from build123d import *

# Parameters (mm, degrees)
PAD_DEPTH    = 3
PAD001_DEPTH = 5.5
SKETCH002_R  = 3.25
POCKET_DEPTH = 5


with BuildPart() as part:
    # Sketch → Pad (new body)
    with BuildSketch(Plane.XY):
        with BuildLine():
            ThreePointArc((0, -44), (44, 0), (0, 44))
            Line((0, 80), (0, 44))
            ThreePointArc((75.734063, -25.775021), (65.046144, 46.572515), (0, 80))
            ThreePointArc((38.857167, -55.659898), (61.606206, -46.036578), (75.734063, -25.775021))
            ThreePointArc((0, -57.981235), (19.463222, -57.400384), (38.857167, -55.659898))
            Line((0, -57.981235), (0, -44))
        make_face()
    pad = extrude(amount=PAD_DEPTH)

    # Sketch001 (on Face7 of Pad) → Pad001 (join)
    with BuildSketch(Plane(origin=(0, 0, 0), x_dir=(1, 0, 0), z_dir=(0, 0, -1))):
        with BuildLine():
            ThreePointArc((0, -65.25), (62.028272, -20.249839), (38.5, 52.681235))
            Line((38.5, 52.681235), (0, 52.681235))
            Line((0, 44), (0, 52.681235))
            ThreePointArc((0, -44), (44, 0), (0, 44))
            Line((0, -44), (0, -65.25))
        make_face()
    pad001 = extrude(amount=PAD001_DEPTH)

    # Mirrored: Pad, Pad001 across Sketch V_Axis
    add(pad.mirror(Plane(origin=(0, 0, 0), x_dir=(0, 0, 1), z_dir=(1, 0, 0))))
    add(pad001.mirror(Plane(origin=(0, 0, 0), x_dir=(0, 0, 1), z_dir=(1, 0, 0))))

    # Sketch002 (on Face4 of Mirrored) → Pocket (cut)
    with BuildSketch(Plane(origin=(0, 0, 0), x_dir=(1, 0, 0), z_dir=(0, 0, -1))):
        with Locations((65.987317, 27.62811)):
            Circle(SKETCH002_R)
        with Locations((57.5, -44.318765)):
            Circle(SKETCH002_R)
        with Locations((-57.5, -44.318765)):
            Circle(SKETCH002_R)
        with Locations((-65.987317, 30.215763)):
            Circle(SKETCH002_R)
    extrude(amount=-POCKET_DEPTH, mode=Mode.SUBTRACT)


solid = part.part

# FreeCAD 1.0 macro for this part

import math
import FreeCAD as App
import Part
import Sketcher

doc = App.newDocument("Part")
params = doc.addObject("Spreadsheet::Sheet", "Params")
for row, (alias, value) in enumerate([
    ("sketch1_radius", "44 mm"),
    ("sketch1_radius2", "80 mm"),
    ("pad1_length", "3 mm"),
    ("sketch2_radius", "44 mm"),
    ("sketch2_radius2", "65.25 mm"),
    ("sketch2_width", "38.5 mm"),
    ("pad2_length", "5.5 mm"),
    ("sketch3_diameter", "6.5 mm"),
    ("pocket1_length", "5 mm"),
], start=1):
    params.set(f"A{row}", alias)
    params.set(f"B{row}", "=" + value)
    params.setAlias(f"B{row}", alias)

body = doc.addObject("PartDesign::Body", "Body")

sketch1 = body.newObject("Sketcher::SketchObject", "Sketch")
sketch1.AttachmentSupport = (doc.getObject("XY_Plane"), [""])
sketch1.MapMode = "FlatFace"
sketch1.addGeometry([
    Part.ArcOfCircle(Part.Circle(App.Vector(0, 0, 0), App.Vector(0, 0, 1), 44), math.radians(-90), math.radians(90)),
    Part.LineSegment(App.Vector(0, -44, 0), App.Vector(0, -58, 0)),
    Part.ArcOfCircle(Part.Circle(App.Vector(0, 268, 0), App.Vector(0, 0, 1), 326), math.radians(-90), math.radians(-83.16)),
    Part.ArcOfCircle(Part.Circle(App.Vector(34, -11, 0), App.Vector(0, 0, 1), 45), math.radians(-83), math.radians(-19)),
    Part.ArcOfCircle(Part.Circle(App.Vector(0, 0, 0), App.Vector(0, 0, 1), 80), math.radians(-19), math.radians(90)),
    Part.LineSegment(App.Vector(0, 80, 0), App.Vector(0, 44, 0)),
], False)
sketch1.addConstraint([
    Sketcher.Constraint("Coincident", 0, 1, 1, 1),
    Sketcher.Constraint("Coincident", 1, 2, 2, 1),
    Sketcher.Constraint("Tangent", 2, 2, 3, 1),
    Sketcher.Constraint("Tangent", 3, 2, 4, 1),
    Sketcher.Constraint("Coincident", 4, 2, 5, 1),
    Sketcher.Constraint("Coincident", 5, 2, 0, 2),
    Sketcher.Constraint("Vertical", 1),
    Sketcher.Constraint("Vertical", 5),
    Sketcher.Constraint("Coincident", 0, 3, -1, 1),
    Sketcher.Constraint("Coincident", 4, 3, -1, 1),
    Sketcher.Constraint("PointOnObject", 0, 1, -2),
    Sketcher.Constraint("PointOnObject", 4, 2, -2),
    Sketcher.Constraint("Radius", 0, 44.0),
    Sketcher.Constraint("Radius", 4, 80.0),
    Sketcher.Constraint("Radius", 2, 326.378229),
    Sketcher.Constraint("Radius", 3, 44.557752),
    Sketcher.Constraint("DistanceY", 1, 2, 1, 1, 13.981235),
    Sketcher.Constraint("DistanceY", 3, 3, -1, 1, 11.419059),
])
sketch1.setExpression("Constraints[12]", "Params.sketch1_radius")
sketch1.setExpression("Constraints[13]", "Params.sketch1_radius2")
pad1 = body.newObject("PartDesign::Pad", "Pad")
pad1.Profile = sketch1
pad1.setExpression("Length", "Params.pad1_length")

sketch2 = body.newObject("Sketcher::SketchObject", "Sketch001")
sketch2.AttachmentSupport = (doc.getObject("XY_Plane"), [""])
sketch2.MapMode = "FlatFace"
sketch2.addGeometry([
    Part.ArcOfCircle(Part.Circle(App.Vector(0, 0, 0), App.Vector(0, 0, 1), 65), math.radians(-54), math.radians(90)),
    Part.LineSegment(App.Vector(38, -53, 0), App.Vector(0, -53, 0)),
    Part.LineSegment(App.Vector(0, -53, 0), App.Vector(0, -44, 0)),
    Part.ArcOfCircle(Part.Circle(App.Vector(0, 0, 0), App.Vector(0, 0, 1), 44), math.radians(-90), math.radians(90)),
    Part.LineSegment(App.Vector(0, 44, 0), App.Vector(0, 65, 0)),
], False)
sketch2.addConstraint([
    Sketcher.Constraint("Coincident", 0, 1, 1, 1),
    Sketcher.Constraint("Coincident", 1, 2, 2, 1),
    Sketcher.Constraint("Coincident", 2, 2, 3, 1),
    Sketcher.Constraint("Coincident", 3, 2, 4, 1),
    Sketcher.Constraint("Coincident", 4, 2, 0, 2),
    Sketcher.Constraint("Horizontal", 1),
    Sketcher.Constraint("Vertical", 2),
    Sketcher.Constraint("Vertical", 4),
    Sketcher.Constraint("Coincident", 0, 3, -1, 1),
    Sketcher.Constraint("Coincident", 3, 3, -1, 1),
    Sketcher.Constraint("PointOnObject", 1, 2, -2),
    Sketcher.Constraint("PointOnObject", 3, 2, -2),
    Sketcher.Constraint("Radius", 3, 44.0),
    Sketcher.Constraint("Radius", 0, 65.25),
    Sketcher.Constraint("DistanceX", 1, 2, 1, 1, 38.5),
])
sketch2.setExpression("Constraints[12]", "Params.sketch2_radius")
sketch2.setExpression("Constraints[13]", "Params.sketch2_radius2")
sketch2.setExpression("Constraints[14]", "Params.sketch2_width")
pad2 = body.newObject("PartDesign::Pad", "Pad001")
pad2.Profile = sketch2
pad2.setExpression("Length", "Params.pad2_length")
pad2.Reversed = True
doc.recompute()

mirrored = body.newObject("PartDesign::Mirrored", "Mirrored")
mirrored.Originals = [pad1, pad2]
mirrored.MirrorPlane = (doc.getObject("YZ_Plane"), [""])
body.Tip = mirrored

sketch3 = body.newObject("Sketcher::SketchObject", "Sketch002")
sketch3.AttachmentSupport = (doc.getObject("XY_Plane"), [""])
sketch3.MapMode = "FlatFace"
sketch3.addGeometry([
    Part.Circle(App.Vector(66, -27.6, 0), App.Vector(0, 0, 1), 3.2),
    Part.Circle(App.Vector(57.5, 44.3, 0), App.Vector(0, 0, 1), 3.2),
    Part.Circle(App.Vector(-57.5, 44.3, 0), App.Vector(0, 0, 1), 3.2),
    Part.Circle(App.Vector(-66, -30.2, 0), App.Vector(0, 0, 1), 3.2),
], False)
sketch3.addConstraint([
    Sketcher.Constraint("Equal", 0, 1),
    Sketcher.Constraint("Equal", 1, 2),
    Sketcher.Constraint("Equal", 2, 3),
    Sketcher.Constraint("Symmetric", 1, 3, 2, 3, -2),
    Sketcher.Constraint("Diameter", 0, 6.5),
    Sketcher.Constraint("DistanceX", 2, 3, 1, 3, 115.0),
    Sketcher.Constraint("DistanceY", 0, 3, -1, 1, 27.62811),
    Sketcher.Constraint("DistanceX", -1, 1, 0, 3, 65.987317),
    Sketcher.Constraint("DistanceY", -1, 1, 1, 3, 44.318765),
    Sketcher.Constraint("DistanceX", 3, 3, -1, 1, 65.987317),
    Sketcher.Constraint("DistanceY", 3, 3, -1, 1, 30.215763),
])
sketch3.setExpression("Constraints[4]", "Params.sketch3_diameter")
pocket1 = body.newObject("PartDesign::Pocket", "Pocket")
pocket1.Profile = sketch3
pocket1.setExpression("Length", "Params.pocket1_length")
pocket1.Reversed = True

doc.recompute()
